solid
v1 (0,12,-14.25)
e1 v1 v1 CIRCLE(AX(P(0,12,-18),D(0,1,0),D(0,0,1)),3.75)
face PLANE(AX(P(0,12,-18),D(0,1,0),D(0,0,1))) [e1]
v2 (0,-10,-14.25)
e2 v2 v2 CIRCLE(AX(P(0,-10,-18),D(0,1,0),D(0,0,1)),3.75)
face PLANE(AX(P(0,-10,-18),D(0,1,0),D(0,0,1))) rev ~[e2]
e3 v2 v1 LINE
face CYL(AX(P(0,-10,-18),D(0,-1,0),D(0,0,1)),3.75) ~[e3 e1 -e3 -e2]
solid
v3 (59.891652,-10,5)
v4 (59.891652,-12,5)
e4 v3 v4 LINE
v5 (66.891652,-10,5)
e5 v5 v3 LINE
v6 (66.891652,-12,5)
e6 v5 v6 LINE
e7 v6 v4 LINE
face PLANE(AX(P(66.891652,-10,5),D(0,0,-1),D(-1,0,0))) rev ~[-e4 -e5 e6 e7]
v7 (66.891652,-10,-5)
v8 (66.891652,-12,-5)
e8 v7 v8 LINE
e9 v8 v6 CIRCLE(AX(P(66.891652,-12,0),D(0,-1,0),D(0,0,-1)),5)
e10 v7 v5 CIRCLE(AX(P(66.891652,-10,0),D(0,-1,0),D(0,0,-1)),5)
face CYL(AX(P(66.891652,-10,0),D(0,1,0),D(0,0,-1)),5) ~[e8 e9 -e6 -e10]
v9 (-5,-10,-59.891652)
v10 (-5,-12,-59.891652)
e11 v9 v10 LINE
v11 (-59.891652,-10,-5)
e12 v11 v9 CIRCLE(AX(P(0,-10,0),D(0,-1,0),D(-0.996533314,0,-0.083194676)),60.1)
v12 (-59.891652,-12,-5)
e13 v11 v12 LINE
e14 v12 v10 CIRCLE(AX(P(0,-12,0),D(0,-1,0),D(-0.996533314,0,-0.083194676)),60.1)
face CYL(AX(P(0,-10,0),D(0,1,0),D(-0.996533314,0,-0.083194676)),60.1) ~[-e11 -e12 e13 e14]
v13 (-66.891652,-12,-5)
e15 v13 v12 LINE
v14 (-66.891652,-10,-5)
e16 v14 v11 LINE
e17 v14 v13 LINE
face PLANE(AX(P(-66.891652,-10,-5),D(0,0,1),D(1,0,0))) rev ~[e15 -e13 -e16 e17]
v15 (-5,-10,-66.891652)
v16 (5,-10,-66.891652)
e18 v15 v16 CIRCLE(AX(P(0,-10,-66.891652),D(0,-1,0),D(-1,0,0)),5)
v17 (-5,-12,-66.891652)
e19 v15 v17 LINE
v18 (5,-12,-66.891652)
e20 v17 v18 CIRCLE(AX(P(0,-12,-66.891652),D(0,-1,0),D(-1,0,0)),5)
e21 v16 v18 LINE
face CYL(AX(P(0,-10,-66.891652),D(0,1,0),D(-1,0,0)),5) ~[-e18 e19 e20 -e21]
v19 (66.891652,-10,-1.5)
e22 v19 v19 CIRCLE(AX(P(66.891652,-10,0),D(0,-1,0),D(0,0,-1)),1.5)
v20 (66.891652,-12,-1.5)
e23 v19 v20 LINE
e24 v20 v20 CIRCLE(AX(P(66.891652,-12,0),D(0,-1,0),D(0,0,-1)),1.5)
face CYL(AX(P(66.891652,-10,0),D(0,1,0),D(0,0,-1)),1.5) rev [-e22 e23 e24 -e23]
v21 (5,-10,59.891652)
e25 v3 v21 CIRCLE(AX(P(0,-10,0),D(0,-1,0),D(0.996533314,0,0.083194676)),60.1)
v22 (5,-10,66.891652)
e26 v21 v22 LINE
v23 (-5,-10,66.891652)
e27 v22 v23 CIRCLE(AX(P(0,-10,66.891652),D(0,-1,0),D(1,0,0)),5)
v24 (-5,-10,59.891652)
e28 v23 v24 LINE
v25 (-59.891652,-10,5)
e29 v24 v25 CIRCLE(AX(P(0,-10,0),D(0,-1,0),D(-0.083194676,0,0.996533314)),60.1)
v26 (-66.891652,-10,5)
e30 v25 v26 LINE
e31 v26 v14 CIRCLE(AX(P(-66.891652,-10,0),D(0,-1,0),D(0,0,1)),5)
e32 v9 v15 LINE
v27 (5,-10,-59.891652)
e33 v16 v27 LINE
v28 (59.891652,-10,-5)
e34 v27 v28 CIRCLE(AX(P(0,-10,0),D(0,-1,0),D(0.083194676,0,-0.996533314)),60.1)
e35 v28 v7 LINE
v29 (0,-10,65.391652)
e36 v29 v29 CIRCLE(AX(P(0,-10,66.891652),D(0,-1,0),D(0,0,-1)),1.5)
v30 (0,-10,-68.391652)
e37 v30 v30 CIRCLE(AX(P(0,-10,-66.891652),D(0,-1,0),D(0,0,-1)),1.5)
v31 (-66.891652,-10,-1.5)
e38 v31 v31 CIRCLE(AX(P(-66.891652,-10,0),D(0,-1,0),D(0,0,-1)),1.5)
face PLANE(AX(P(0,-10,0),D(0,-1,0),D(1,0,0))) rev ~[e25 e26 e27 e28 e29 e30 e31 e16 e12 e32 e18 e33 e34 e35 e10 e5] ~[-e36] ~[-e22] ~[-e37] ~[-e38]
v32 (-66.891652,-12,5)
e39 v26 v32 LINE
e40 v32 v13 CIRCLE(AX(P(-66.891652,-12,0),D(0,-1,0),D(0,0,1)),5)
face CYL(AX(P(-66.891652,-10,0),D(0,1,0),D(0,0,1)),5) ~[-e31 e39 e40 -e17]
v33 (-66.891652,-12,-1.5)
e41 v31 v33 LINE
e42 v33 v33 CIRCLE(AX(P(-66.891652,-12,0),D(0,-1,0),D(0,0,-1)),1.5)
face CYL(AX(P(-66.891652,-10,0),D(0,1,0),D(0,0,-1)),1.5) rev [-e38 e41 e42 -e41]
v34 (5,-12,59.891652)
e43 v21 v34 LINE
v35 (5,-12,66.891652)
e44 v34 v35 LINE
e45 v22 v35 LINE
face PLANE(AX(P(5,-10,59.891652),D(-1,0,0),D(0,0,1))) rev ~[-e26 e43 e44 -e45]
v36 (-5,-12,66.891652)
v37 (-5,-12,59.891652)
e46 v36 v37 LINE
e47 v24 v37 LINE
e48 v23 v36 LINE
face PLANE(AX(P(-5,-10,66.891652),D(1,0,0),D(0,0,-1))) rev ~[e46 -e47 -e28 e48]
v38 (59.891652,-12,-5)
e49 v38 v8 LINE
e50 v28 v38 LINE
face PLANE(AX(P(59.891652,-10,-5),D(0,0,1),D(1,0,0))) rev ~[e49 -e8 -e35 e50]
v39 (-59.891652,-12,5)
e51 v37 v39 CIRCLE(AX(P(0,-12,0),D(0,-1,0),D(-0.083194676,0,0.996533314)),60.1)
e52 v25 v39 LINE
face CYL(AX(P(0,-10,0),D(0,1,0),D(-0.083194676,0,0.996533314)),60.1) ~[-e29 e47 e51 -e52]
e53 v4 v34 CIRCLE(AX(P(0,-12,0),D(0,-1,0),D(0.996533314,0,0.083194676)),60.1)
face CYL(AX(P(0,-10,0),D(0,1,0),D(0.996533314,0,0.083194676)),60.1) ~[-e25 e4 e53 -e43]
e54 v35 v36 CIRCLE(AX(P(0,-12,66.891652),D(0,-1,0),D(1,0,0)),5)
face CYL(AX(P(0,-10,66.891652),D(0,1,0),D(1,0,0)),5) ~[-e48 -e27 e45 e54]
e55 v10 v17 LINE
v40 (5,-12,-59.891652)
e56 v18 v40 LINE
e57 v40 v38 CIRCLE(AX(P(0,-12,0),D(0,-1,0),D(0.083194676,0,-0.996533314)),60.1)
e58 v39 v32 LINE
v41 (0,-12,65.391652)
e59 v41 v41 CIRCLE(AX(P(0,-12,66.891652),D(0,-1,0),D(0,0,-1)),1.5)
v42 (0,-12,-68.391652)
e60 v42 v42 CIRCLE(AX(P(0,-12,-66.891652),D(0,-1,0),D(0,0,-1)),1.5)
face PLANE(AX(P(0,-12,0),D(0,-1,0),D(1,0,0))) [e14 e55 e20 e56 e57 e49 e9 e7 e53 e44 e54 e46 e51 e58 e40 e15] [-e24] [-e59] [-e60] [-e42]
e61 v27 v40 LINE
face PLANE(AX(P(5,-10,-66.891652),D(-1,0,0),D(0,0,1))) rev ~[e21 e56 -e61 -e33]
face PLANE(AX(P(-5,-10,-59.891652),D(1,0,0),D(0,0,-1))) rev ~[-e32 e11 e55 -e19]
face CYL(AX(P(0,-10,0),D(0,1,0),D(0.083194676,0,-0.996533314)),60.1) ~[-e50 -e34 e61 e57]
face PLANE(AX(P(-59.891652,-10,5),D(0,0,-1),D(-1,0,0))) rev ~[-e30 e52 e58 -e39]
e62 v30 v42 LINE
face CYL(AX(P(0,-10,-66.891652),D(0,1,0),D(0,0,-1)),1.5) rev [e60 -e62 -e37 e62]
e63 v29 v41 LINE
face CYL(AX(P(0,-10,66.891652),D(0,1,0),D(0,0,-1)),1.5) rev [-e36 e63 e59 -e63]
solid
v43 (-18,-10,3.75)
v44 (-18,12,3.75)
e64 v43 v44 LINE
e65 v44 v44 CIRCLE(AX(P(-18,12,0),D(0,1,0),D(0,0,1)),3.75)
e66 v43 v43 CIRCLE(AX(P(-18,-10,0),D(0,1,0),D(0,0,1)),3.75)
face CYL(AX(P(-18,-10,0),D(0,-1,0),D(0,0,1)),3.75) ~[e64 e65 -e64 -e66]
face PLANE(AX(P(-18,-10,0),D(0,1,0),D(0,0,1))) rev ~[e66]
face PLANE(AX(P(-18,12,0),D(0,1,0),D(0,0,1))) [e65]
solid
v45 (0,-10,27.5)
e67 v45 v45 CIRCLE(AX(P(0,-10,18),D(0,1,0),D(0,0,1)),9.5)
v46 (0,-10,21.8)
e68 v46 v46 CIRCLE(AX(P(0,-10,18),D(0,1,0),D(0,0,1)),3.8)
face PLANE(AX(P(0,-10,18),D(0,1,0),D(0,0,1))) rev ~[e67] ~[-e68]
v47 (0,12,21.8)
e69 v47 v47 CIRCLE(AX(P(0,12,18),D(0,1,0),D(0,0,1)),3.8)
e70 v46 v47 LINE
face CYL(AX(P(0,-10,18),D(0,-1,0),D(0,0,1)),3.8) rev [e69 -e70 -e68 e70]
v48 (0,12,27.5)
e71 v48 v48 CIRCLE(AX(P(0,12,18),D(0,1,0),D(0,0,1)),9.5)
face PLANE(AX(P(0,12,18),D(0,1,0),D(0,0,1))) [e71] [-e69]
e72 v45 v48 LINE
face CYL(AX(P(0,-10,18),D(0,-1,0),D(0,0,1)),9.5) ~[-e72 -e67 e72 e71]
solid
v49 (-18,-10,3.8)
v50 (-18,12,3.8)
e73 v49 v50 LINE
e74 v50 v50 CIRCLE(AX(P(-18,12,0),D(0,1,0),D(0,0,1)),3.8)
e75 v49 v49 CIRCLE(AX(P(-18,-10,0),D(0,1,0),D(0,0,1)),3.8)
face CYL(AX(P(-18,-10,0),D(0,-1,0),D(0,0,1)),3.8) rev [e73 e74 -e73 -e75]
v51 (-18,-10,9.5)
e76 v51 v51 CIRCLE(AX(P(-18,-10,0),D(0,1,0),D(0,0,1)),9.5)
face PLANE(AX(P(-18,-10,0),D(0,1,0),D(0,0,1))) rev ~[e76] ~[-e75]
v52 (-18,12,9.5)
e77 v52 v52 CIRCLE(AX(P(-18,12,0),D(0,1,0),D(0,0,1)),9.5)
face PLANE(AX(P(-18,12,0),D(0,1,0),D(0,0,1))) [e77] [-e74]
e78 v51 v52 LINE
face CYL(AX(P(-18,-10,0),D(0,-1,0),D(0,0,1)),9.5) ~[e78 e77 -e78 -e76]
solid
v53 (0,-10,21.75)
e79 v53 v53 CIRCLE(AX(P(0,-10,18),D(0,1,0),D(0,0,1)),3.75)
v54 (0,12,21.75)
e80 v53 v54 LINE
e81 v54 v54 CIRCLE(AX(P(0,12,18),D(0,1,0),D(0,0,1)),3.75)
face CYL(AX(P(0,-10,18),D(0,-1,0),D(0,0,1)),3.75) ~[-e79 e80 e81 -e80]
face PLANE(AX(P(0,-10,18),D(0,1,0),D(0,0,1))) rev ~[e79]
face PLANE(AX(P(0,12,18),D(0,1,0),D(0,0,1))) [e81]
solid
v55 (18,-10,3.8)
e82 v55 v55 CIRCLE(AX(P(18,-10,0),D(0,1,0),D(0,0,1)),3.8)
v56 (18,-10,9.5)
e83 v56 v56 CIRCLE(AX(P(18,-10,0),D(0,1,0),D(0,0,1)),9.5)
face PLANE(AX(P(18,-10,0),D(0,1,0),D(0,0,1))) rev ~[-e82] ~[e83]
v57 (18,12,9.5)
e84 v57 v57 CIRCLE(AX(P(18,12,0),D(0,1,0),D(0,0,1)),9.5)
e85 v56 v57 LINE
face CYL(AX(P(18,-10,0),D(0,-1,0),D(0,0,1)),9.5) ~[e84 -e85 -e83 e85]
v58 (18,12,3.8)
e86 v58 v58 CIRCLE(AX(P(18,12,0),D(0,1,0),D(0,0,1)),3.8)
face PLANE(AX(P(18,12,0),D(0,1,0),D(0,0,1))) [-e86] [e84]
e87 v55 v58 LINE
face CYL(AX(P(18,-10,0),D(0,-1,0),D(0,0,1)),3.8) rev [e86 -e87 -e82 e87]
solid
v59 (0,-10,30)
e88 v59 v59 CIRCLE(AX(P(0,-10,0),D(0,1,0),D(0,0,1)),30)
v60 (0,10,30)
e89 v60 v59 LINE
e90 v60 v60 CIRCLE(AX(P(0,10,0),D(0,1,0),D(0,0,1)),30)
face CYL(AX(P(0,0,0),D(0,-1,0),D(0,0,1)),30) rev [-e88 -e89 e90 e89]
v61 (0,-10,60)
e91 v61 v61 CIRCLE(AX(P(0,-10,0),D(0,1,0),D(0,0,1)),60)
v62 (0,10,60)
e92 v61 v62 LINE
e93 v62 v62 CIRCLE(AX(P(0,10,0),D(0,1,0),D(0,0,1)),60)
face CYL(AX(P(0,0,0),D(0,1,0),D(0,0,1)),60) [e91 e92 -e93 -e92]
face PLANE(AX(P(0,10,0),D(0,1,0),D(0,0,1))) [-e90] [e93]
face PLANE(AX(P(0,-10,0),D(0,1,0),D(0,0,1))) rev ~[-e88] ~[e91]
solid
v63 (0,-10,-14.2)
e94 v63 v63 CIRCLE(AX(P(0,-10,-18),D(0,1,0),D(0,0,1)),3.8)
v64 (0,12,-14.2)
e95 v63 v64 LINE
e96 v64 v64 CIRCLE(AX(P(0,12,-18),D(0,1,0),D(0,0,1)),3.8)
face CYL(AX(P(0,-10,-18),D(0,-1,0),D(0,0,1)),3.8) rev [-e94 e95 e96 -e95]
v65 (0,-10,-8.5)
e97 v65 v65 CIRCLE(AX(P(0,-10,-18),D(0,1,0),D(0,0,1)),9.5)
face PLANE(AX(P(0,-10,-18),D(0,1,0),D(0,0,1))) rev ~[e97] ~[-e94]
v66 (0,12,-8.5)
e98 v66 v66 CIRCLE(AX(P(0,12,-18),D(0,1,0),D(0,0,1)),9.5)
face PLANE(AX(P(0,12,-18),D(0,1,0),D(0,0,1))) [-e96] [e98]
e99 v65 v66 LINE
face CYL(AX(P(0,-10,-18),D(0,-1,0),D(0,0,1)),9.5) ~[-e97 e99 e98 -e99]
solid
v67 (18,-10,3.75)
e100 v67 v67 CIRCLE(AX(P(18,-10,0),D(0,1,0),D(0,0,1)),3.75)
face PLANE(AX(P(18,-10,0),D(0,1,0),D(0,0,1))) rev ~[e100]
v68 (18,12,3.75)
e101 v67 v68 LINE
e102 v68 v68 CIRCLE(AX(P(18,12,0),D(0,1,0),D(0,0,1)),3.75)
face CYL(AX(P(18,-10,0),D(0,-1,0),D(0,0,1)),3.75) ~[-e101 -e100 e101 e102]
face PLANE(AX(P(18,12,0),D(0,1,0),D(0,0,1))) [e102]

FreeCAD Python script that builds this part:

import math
import FreeCAD as App
import Part
import Sketcher
from FreeCAD import Vector

doc = App.newDocument("Part")
body = doc.addObject("PartDesign::Body", "Body")

# Sketch on XZ plane
sketch1 = body.newObject("Sketcher::SketchObject", "Sketch")
sketch1.AttachmentSupport = (doc.getObject("XZ_Plane"), [""])
sketch1.MapMode = "FlatFace"
sketch1.addGeometry([
    Part.Circle(Vector(0, 0, 0), Vector(0, 0, 1), 60),
    Part.Circle(Vector(0, 0, 0), Vector(0, 0, 1), 30),
], False)
sketch1.addConstraint([
    Sketcher.Constraint("Coincident", 0, 3, -1, 1),
    Sketcher.Constraint("Coincident", 1, 3, -1, 1),
    Sketcher.Constraint("Diameter", 0, 120.0),
    Sketcher.Constraint("Diameter", 1, 60.0),
])
pad1 = body.newObject("PartDesign::Pad", "Pad")
pad1.Profile = sketch1
pad1.Length = 20
pad1.Midplane = True
body2 = doc.addObject("PartDesign::Body", "Body001")

# Sketch on XZ plane
sketch2 = body2.newObject("Sketcher::SketchObject", "Sketch001")
sketch2.AttachmentSupport = (doc.getObject("XZ_Plane001"), [""])
sketch2.MapMode = "FlatFace"
sketch2.AttachmentOffset = App.Placement(Vector(0, 0, 10), App.Rotation())
sketch2.addGeometry([
    Part.LineSegment(Vector(-5, 66.9, 0), Vector(-5, 59.9, 0)),  # 0
    Part.ArcOfCircle(Part.Circle(Vector(0, 0, 0), Vector(0, 0, 1), 60.1), math.radians(95), math.radians(175)),  # 1
    Part.LineSegment(Vector(-59.9, 5, 0), Vector(-66.9, 5, 0)),  # 2
    Part.ArcOfCircle(Part.Circle(Vector(-66.9, 0, 0), Vector(0, 0, 1), 5), math.radians(90), math.radians(270)),  # 3
    Part.LineSegment(Vector(-66.9, -5, 0), Vector(-59.9, -5, 0)),  # 4
    Part.ArcOfCircle(Part.Circle(Vector(0, 0, 0), Vector(0, 0, 1), 60.1), math.radians(-175), math.radians(-95)),  # 5
    Part.LineSegment(Vector(-5, -59.9, 0), Vector(-5, -66.9, 0)),  # 6
    Part.ArcOfCircle(Part.Circle(Vector(0, -66.9, 0), Vector(0, 0, 1), 5), math.radians(180), math.radians(360)),  # 7
    Part.LineSegment(Vector(5, -66.9, 0), Vector(5, -59.9, 0)),  # 8
    Part.ArcOfCircle(Part.Circle(Vector(0, 0, 0), Vector(0, 0, 1), 60.1), math.radians(-85), math.radians(-5)),  # 9
    Part.LineSegment(Vector(59.9, -5, 0), Vector(66.9, -5, 0)),  # 10
    Part.ArcOfCircle(Part.Circle(Vector(66.9, 0, 0), Vector(0, 0, 1), 5), math.radians(-90), math.radians(90)),  # 11
    Part.LineSegment(Vector(66.9, 5, 0), Vector(59.9, 5, 0)),  # 12
    Part.ArcOfCircle(Part.Circle(Vector(0, 0, 0), Vector(0, 0, 1), 60.1), math.radians(5), math.radians(85)),  # 13
    Part.LineSegment(Vector(5, 59.9, 0), Vector(5, 66.9, 0)),  # 14
    Part.ArcOfCircle(Part.Circle(Vector(0, 66.9, 0), Vector(0, 0, 1), 5), math.radians(0), math.radians(180)),  # 15
    Part.Circle(Vector(0, -66.9, 0), Vector(0, 0, 1), 1.5),  # 16
    Part.Circle(Vector(-66.9, 0, 0), Vector(0, 0, 1), 1.5),  # 17
    Part.Circle(Vector(66.9, 0, 0), Vector(0, 0, 1), 1.5),  # 18
    Part.Circle(Vector(0, 66.9, 0), Vector(0, 0, 1), 1.5),  # 19
], False)
sketch2.addConstraint([
    Sketcher.Constraint("Coincident", 0, 2, 1, 1),
    Sketcher.Constraint("Coincident", 1, 2, 2, 1),
    Sketcher.Constraint("Tangent", 2, 2, 3, 1),
    Sketcher.Constraint("Tangent", 3, 2, 4, 1),
    Sketcher.Constraint("Coincident", 4, 2, 5, 1),
    Sketcher.Constraint("Coincident", 5, 2, 6, 1),
    Sketcher.Constraint("Tangent", 6, 2, 7, 1),
    Sketcher.Constraint("Tangent", 7, 2, 8, 1),
    Sketcher.Constraint("Coincident", 8, 2, 9, 1),
    Sketcher.Constraint("Coincident", 9, 2, 10, 1),
    Sketcher.Constraint("Tangent", 10, 2, 11, 1),
    Sketcher.Constraint("Tangent", 11, 2, 12, 1),
    Sketcher.Constraint("Coincident", 12, 2, 13, 1),
    Sketcher.Constraint("Coincident", 13, 2, 14, 1),
    Sketcher.Constraint("Tangent", 14, 2, 15, 1),
    Sketcher.Constraint("Tangent", 15, 2, 0, 1),
    Sketcher.Constraint("Vertical", 0),
    Sketcher.Constraint("Horizontal", 2),
    Sketcher.Constraint("Horizontal", 4),
    Sketcher.Constraint("Vertical", 6),
    Sketcher.Constraint("Vertical", 8),
    Sketcher.Constraint("Horizontal", 10),
    Sketcher.Constraint("Horizontal", 12),
    Sketcher.Constraint("Vertical", 14),
    Sketcher.Constraint("Coincident", 1, 3, -1, 1),
    Sketcher.Constraint("Coincident", 5, 3, -1, 1),
    Sketcher.Constraint("Coincident", 9, 3, -1, 1),
    Sketcher.Constraint("Coincident", 13, 3, -1, 1),
    Sketcher.Constraint("Coincident", 16, 3, 7, 3),
    Sketcher.Constraint("Coincident", 17, 3, 3, 3),
    Sketcher.Constraint("Coincident", 18, 3, 11, 3),
    Sketcher.Constraint("Coincident", 19, 3, 15, 3),
    Sketcher.Constraint("Equal", 1, 5),
    Sketcher.Constraint("Equal", 3, 7),
    Sketcher.Constraint("Equal", 5, 9),
    Sketcher.Constraint("Equal", 7, 11),
    Sketcher.Constraint("Equal", 9, 13),
    Sketcher.Constraint("Equal", 11, 15),
    Sketcher.Constraint("Equal", 16, 17),
    Sketcher.Constraint("Equal", 17, 18),
    Sketcher.Constraint("Equal", 18, 19),
    Sketcher.Constraint("Symmetric", 3, 3, 11, 3, -1, 1),
    Sketcher.Constraint("Symmetric", 7, 3, 15, 3, -1, 1),
    Sketcher.Constraint("PointOnObject", 3, 3, -1),
    Sketcher.Constraint("PointOnObject", 7, 3, -2),
    Sketcher.Constraint("Equal", 12, 0),
    Sketcher.Constraint("Diameter", 16, 3.0),
    Sketcher.Constraint("Radius", 3, 5.0),
    Sketcher.Constraint("Radius", 1, 60.1),
    Sketcher.Constraint("DistanceX", 2, 2, 2, 1, 7.0),
])
pad2 = body2.newObject("PartDesign::Pad", "Pad001")
pad2.Profile = sketch2
pad2.Length = 2
body3 = doc.addObject("PartDesign::Body", "Body002")

# Sketch on XZ plane
sketch3 = body3.newObject("Sketcher::SketchObject", "Sketch002")
sketch3.AttachmentSupport = (doc.getObject("XZ_Plane002"), [""])
sketch3.MapMode = "FlatFace"
sketch3.AttachmentOffset = App.Placement(Vector(0, 0, 10), App.Rotation())
sketch3.addGeometry([
    Part.Circle(Vector(0, -18, 0), Vector(0, 0, 1), 9.5),
    Part.Circle(Vector(0, -18, 0), Vector(0, 0, 1), 3.8),
], False)
sketch3.addConstraint([
    Sketcher.Constraint("Coincident", 1, 3, 0, 3),
    Sketcher.Constraint("PointOnObject", 0, 3, -2),
    Sketcher.Constraint("Diameter", 0, 19.0),
    Sketcher.Constraint("Diameter", 1, 7.6),
    Sketcher.Constraint("DistanceY", 0, 3, -1, 1, 18.0),
])
pad3 = body3.newObject("PartDesign::Pad", "Pad002")
pad3.Profile = sketch3
pad3.Length = 22
pad3.Reversed = True
body4 = doc.addObject("PartDesign::Body", "Body003")

# Sketch on XZ plane
sketch4 = body4.newObject("Sketcher::SketchObject", "Sketch003")
sketch4.AttachmentSupport = (doc.getObject("XZ_Plane003"), [""])
sketch4.MapMode = "FlatFace"
sketch4.AttachmentOffset = App.Placement(Vector(0, 0, 10), App.Rotation())
sketch4.addGeometry([
    Part.Circle(Vector(-18, 0, 0), Vector(0, 0, 1), 9.5),
    Part.Circle(Vector(-18, 0, 0), Vector(0, 0, 1), 3.8),
], False)
sketch4.addConstraint([
    Sketcher.Constraint("Coincident", 1, 3, 0, 3),
    Sketcher.Constraint("PointOnObject", 0, 3, -1),
    Sketcher.Constraint("Diameter", 0, 19.0),
    Sketcher.Constraint("Diameter", 1, 7.6),
    Sketcher.Constraint("DistanceX", 0, 3, -1, 1, 18.0),
])
pad4 = body4.newObject("PartDesign::Pad", "Pad003")
pad4.Profile = sketch4
pad4.Length = 22
pad4.Reversed = True
body5 = doc.addObject("PartDesign::Body", "Body004")

# Sketch on XZ plane
sketch5 = body5.newObject("Sketcher::SketchObject", "Sketch004")
sketch5.AttachmentSupport = (doc.getObject("XZ_Plane004"), [""])
sketch5.MapMode = "FlatFace"
sketch5.AttachmentOffset = App.Placement(Vector(0, 0, 10), App.Rotation())
sketch5.addGeometry(Part.Circle(Vector(-18, 0, 0), Vector(0, 0, 1), 3.8), False)
sketch5.addConstraint([
    Sketcher.Constraint("PointOnObject", 0, 3, -1),
    Sketcher.Constraint("Diameter", 0, 7.5),
    Sketcher.Constraint("DistanceX", 0, 3, -1, 1, 18.0),
])
pad5 = body5.newObject("PartDesign::Pad", "Pad004")
pad5.Profile = sketch5
pad5.Length = 22
pad5.Reversed = True
body6 = doc.addObject("PartDesign::Body", "Body005")

# Sketch on XZ plane
sketch6 = body6.newObject("Sketcher::SketchObject", "Sketch005")
sketch6.AttachmentSupport = (doc.getObject("XZ_Plane005"), [""])
sketch6.MapMode = "FlatFace"
sketch6.AttachmentOffset = App.Placement(Vector(0, 0, 10), App.Rotation())
sketch6.addGeometry([
    Part.Circle(Vector(0, 18, 0), Vector(0, 0, 1), 9.5),
    Part.Circle(Vector(0, 18, 0), Vector(0, 0, 1), 3.8),
], False)
sketch6.addConstraint([
    Sketcher.Constraint("Coincident", 1, 3, 0, 3),
    Sketcher.Constraint("PointOnObject", 0, 3, -2),
    Sketcher.Constraint("Diameter", 0, 19.0),
    Sketcher.Constraint("Diameter", 1, 7.6),
    Sketcher.Constraint("DistanceY", -1, 1, 0, 3, 18.0),
])
pad6 = body6.newObject("PartDesign::Pad", "Pad005")
pad6.Profile = sketch6
pad6.Length = 22
pad6.Reversed = True
body7 = doc.addObject("PartDesign::Body", "Body006")

# Sketch on XZ plane
sketch7 = body7.newObject("Sketcher::SketchObject", "Sketch006")
sketch7.AttachmentSupport = (doc.getObject("XZ_Plane006"), [""])
sketch7.MapMode = "FlatFace"
sketch7.AttachmentOffset = App.Placement(Vector(0, 0, 10), App.Rotation())
sketch7.addGeometry(Part.Circle(Vector(0, 18, 0), Vector(0, 0, 1), 3.8), False)
sketch7.addConstraint([
    Sketcher.Constraint("PointOnObject", 0, 3, -2),
    Sketcher.Constraint("Diameter", 0, 7.5),
    Sketcher.Constraint("DistanceY", -1, 1, 0, 3, 18.0),
])
pad7 = body7.newObject("PartDesign::Pad", "Pad006")
pad7.Profile = sketch7
pad7.Length = 22
pad7.Reversed = True
body8 = doc.addObject("PartDesign::Body", "Body007")

# Sketch on XZ plane
sketch8 = body8.newObject("Sketcher::SketchObject", "Sketch007")
sketch8.AttachmentSupport = (doc.getObject("XZ_Plane007"), [""])
sketch8.MapMode = "FlatFace"
sketch8.AttachmentOffset = App.Placement(Vector(0, 0, 10), App.Rotation())
sketch8.addGeometry(Part.Circle(Vector(18, 0, 0), Vector(0, 0, 1), 3.8), False)
sketch8.addConstraint([
    Sketcher.Constraint("PointOnObject", 0, 3, -1),
    Sketcher.Constraint("Diameter", 0, 7.5),
    Sketcher.Constraint("DistanceX", -1, 1, 0, 3, 18.0),
])
pad8 = body8.newObject("PartDesign::Pad", "Pad007")
pad8.Profile = sketch8
pad8.Length = 22
pad8.Reversed = True
body9 = doc.addObject("PartDesign::Body", "Body008")

# Sketch on XZ plane
sketch9 = body9.newObject("Sketcher::SketchObject", "Sketch008")
sketch9.AttachmentSupport = (doc.getObject("XZ_Plane008"), [""])
sketch9.MapMode = "FlatFace"
sketch9.AttachmentOffset = App.Placement(Vector(0, 0, 10), App.Rotation())
sketch9.addGeometry([
    Part.Circle(Vector(18, 0, 0), Vector(0, 0, 1), 9.5),
    Part.Circle(Vector(18, 0, 0), Vector(0, 0, 1), 3.8),
], False)
sketch9.addConstraint([
    Sketcher.Constraint("Coincident", 1, 3, 0, 3),
    Sketcher.Constraint("PointOnObject", 0, 3, -1),
    Sketcher.Constraint("Diameter", 0, 19.0),
    Sketcher.Constraint("Diameter", 1, 7.6),
    Sketcher.Constraint("DistanceX", -1, 1, 0, 3, 18.0),
])
pad9 = body9.newObject("PartDesign::Pad", "Pad008")
pad9.Profile = sketch9
pad9.Length = 22
pad9.Reversed = True
body10 = doc.addObject("PartDesign::Body", "Body009")

# Sketch on XZ plane
sketch10 = body10.newObject("Sketcher::SketchObject", "Sketch009")
sketch10.AttachmentSupport = (doc.getObject("XZ_Plane009"), [""])
sketch10.MapMode = "FlatFace"
sketch10.AttachmentOffset = App.Placement(Vector(0, 0, 10), App.Rotation())
sketch10.addGeometry(Part.Circle(Vector(0, -18, 0), Vector(0, 0, 1), 3.8), False)
sketch10.addConstraint([
    Sketcher.Constraint("PointOnObject", 0, 3, -2),
    Sketcher.Constraint("Diameter", 0, 7.5),
    Sketcher.Constraint("DistanceY", 0, 3, -1, 1, 18.0),
])
pad10 = body10.newObject("PartDesign::Pad", "Pad009")
pad10.Profile = sketch10
pad10.Length = 22
pad10.Reversed = True

doc.recompute()
